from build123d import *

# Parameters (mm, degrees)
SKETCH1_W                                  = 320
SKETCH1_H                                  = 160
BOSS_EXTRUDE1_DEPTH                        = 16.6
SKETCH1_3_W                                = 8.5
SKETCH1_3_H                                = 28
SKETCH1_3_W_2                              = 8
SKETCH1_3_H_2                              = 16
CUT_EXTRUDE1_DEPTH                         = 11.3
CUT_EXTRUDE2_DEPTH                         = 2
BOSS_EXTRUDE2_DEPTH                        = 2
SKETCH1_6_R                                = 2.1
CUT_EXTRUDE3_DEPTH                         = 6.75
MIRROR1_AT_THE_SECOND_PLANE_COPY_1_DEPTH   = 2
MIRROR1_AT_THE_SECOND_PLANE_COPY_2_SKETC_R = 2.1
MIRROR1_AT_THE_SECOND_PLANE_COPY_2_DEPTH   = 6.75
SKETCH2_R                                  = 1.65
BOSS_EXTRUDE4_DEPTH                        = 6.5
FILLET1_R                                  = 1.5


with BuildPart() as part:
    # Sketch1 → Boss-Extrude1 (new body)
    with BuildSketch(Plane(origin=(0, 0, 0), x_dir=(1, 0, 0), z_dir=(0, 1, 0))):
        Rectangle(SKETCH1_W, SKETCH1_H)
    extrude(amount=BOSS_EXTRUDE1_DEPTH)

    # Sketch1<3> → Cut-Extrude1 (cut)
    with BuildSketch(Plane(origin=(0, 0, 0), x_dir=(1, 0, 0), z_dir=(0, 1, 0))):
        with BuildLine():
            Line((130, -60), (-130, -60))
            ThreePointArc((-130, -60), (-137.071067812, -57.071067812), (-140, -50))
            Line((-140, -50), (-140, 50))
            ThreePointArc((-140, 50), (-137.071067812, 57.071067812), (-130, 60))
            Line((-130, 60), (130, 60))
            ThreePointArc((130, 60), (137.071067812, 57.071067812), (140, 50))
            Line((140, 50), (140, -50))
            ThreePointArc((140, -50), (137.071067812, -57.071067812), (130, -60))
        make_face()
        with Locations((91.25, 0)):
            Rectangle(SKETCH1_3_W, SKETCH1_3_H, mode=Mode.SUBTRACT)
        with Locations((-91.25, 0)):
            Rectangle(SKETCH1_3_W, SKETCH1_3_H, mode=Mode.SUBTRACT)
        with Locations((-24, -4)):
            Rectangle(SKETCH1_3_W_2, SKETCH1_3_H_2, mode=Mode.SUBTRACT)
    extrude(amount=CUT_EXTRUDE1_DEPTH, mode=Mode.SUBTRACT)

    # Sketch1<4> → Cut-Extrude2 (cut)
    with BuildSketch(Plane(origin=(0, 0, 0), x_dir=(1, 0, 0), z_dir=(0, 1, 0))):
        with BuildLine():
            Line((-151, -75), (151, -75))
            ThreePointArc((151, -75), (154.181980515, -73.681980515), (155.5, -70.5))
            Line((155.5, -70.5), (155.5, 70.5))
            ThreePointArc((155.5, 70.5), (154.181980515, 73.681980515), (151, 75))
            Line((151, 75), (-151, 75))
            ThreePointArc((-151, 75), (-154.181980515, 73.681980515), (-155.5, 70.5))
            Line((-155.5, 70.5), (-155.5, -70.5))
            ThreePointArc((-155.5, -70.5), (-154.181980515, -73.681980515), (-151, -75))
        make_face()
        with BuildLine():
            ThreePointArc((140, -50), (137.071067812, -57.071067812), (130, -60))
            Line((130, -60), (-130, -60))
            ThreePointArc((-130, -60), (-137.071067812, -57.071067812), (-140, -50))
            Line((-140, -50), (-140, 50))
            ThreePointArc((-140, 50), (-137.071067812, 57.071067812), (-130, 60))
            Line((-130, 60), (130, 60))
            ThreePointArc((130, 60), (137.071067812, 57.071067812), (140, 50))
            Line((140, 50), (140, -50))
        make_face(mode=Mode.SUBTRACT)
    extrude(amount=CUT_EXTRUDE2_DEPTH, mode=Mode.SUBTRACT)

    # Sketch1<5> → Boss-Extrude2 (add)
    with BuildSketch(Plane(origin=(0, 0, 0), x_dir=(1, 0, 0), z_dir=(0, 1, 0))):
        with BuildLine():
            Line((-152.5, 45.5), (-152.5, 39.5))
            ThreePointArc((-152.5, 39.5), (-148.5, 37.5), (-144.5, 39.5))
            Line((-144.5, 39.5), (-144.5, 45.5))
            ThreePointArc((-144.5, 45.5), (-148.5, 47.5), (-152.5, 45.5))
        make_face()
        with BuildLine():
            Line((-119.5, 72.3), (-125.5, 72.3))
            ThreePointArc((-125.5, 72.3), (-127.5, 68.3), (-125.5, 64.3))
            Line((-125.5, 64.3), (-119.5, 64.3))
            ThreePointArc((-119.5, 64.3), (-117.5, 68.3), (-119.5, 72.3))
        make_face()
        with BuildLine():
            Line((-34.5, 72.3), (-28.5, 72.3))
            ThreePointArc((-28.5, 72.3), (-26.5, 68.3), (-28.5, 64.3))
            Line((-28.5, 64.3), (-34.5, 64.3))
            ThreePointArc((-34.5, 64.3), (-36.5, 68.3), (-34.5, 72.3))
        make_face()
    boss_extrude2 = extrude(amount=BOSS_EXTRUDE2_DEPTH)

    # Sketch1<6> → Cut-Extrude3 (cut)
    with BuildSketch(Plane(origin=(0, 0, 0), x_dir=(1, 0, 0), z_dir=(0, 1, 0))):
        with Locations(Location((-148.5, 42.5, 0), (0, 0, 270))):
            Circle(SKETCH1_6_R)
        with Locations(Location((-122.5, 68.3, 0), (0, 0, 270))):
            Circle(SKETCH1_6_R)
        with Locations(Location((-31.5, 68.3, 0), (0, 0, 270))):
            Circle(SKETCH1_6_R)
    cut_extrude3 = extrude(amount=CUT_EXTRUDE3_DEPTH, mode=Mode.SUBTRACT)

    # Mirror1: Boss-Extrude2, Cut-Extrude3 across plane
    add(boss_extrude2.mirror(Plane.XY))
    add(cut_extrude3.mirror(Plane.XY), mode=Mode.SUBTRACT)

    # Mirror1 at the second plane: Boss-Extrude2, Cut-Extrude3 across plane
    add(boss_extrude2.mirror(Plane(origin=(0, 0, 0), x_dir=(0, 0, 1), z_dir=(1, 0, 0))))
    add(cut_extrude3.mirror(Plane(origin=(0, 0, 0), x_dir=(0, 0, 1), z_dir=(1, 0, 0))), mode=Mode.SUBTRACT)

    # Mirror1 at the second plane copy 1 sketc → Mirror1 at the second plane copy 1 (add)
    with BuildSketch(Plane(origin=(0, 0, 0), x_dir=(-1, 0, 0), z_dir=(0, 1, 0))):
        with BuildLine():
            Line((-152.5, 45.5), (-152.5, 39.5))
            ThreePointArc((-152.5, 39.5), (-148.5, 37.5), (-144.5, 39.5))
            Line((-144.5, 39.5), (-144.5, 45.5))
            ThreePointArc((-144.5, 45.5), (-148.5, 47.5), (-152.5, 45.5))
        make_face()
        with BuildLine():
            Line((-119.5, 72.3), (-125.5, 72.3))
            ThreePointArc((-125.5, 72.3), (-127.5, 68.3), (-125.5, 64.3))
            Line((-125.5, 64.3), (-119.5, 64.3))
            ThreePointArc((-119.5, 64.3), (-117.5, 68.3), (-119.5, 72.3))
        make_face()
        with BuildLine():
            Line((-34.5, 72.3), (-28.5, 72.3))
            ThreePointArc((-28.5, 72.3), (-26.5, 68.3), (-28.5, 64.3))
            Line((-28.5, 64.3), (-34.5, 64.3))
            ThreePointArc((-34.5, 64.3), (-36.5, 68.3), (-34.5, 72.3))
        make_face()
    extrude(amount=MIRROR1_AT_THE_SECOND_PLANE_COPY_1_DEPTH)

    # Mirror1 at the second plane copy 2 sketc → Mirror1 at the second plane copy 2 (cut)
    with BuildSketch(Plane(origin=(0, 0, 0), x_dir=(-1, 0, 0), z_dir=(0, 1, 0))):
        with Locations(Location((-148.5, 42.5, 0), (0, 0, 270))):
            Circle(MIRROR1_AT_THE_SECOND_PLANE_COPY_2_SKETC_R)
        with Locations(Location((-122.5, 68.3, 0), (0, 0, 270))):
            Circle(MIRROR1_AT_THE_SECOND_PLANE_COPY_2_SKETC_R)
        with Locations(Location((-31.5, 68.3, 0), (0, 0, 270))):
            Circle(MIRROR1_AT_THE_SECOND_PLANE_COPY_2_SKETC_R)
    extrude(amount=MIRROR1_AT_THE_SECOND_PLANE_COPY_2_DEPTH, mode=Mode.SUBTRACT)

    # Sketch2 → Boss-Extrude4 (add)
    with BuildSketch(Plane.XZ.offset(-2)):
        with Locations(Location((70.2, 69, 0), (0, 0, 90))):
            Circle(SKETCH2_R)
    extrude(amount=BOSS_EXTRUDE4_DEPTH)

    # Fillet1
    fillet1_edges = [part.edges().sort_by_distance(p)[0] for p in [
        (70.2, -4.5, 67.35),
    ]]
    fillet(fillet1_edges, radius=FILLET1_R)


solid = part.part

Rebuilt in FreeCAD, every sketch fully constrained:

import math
import FreeCAD as App
import Part
import Sketcher
from FreeCAD import Vector


def edges_at(feature, points):
    """Names of the edges that pass closest to the given points."""
    edges = feature.Shape.Edges
    near = lambda p: min(range(len(edges)), key=lambda i: edges[i].distToShape(Part.Vertex(*p))[0])
    return sorted({f"Edge{near(p) + 1}" for p in points})

doc = App.newDocument("Part")
params = doc.addObject("Spreadsheet::Sheet", "Params")
for row, (alias, value) in enumerate([
    ("sketch1_width", "320 mm"),
    ("sketch1_height", "160 mm"),
    ("pad1_length", "16.6 mm"),
    ("sketch2_radius", "10 mm"),
    ("sketch2_width", "260 mm"),
    ("sketch2_width2", "8 mm"),
    ("sketch2_height", "100 mm"),
    ("sketch2_height2", "16 mm"),
    ("pocket1_length", "11.3 mm"),
    ("sketch3_radius", "10 mm"),
    ("sketch3_radius2", "4.5 mm"),
    ("sketch3_width", "302 mm"),
    ("sketch3_width2", "260 mm"),
    ("sketch3_height", "141 mm"),
    ("pocket2_length", "2 mm"),
    ("sketch4_radius", "5 mm"),
    ("sketch4_width", "6 mm"),
    ("pad2_length", "2 mm"),
    ("sketch5_diameter", "4.2 mm"),
    ("pocket3_length", "6.75 mm"),
    ("sketch6_radius", "5 mm"),
    ("sketch6_width", "6 mm"),
    ("pad3_length", "2 mm"),
    ("sketch7_diameter", "4.2 mm"),
    ("pocket4_length", "6.75 mm"),
    ("sketch8_diameter", "3.3 mm"),
    ("pad4_length", "6.5 mm"),
    ("fillet_radius", "1.5 mm"),
], start=1):
    params.set(f"A{row}", alias)
    params.set(f"B{row}", "=" + value)
    params.setAlias(f"B{row}", alias)

body = doc.addObject("PartDesign::Body", "Body")

# Sketch on XZ plane
sketch1 = body.newObject("Sketcher::SketchObject", "Sketch")
sketch1.AttachmentSupport = (doc.getObject("XZ_Plane"), [""])
sketch1.MapMode = "FlatFace"
sketch1.addGeometry([
    Part.LineSegment(Vector(-160, -80, 0), Vector(-160, 80, 0)),
    Part.LineSegment(Vector(-160, 80, 0), Vector(160, 80, 0)),
    Part.LineSegment(Vector(160, 80, 0), Vector(160, -80, 0)),
    Part.LineSegment(Vector(160, -80, 0), Vector(-160, -80, 0)),
], False)
sketch1.addConstraint([
    Sketcher.Constraint("Coincident", 0, 2, 1, 1),
    Sketcher.Constraint("Coincident", 1, 2, 2, 1),
    Sketcher.Constraint("Coincident", 2, 2, 3, 1),
    Sketcher.Constraint("Coincident", 3, 2, 0, 1),
    Sketcher.Constraint("Vertical", 0),
    Sketcher.Constraint("Horizontal", 1),
    Sketcher.Constraint("Vertical", 2),
    Sketcher.Constraint("Horizontal", 3),
    Sketcher.Constraint("Symmetric", 0, 2, 2, 2, -1, 1),
    Sketcher.Constraint("DistanceX", 1, 1, 1, 2, 320.0),
    Sketcher.Constraint("DistanceY", 0, 1, 0, 2, 160.0),
])
sketch1.setExpression("Constraints[9]", "Params.sketch1_width")
sketch1.setExpression("Constraints[10]", "Params.sketch1_height")
pad1 = body.newObject("PartDesign::Pad", "Pad")
pad1.Profile = sketch1
pad1.setExpression("Length", "Params.pad1_length")
pad1.Reversed = True

# Sketch on XZ plane
sketch2 = body.newObject("Sketcher::SketchObject", "Sketch001")
sketch2.AttachmentSupport = (doc.getObject("XZ_Plane"), [""])
sketch2.MapMode = "FlatFace"
sketch2.addGeometry([
    Part.LineSegment(Vector(-130, 60, 0), Vector(130, 60, 0)),  # 0
    Part.ArcOfCircle(Part.Circle(Vector(130, 50, 0), Vector(0, 0, 1), 10), math.radians(0), math.radians(90)),  # 1
    Part.LineSegment(Vector(140, 50, 0), Vector(140, -50, 0)),  # 2
    Part.ArcOfCircle(Part.Circle(Vector(130, -50, 0), Vector(0, 0, 1), 10), math.radians(-90), math.radians(0)),  # 3
    Part.LineSegment(Vector(130, -60, 0), Vector(-130, -60, 0)),  # 4
    Part.ArcOfCircle(Part.Circle(Vector(-130, -50, 0), Vector(0, 0, 1), 10), math.radians(180), math.radians(270)),  # 5
    Part.LineSegment(Vector(-140, -50, 0), Vector(-140, 50, 0)),  # 6
    Part.ArcOfCircle(Part.Circle(Vector(-130, 50, 0), Vector(0, 0, 1), 10), math.radians(90), math.radians(180)),  # 7
    Part.LineSegment(Vector(-28, 12, 0), Vector(-28, -4, 0)),  # 8
    Part.LineSegment(Vector(-28, -4, 0), Vector(-20, -4, 0)),  # 9
    Part.LineSegment(Vector(-20, -4, 0), Vector(-20, 12, 0)),  # 10
    Part.LineSegment(Vector(-20, 12, 0), Vector(-28, 12, 0)),  # 11
    Part.LineSegment(Vector(87, 14, 0), Vector(87, -14, 0)),  # 12
    Part.LineSegment(Vector(87, -14, 0), Vector(96, -14, 0)),  # 13
    Part.LineSegment(Vector(96, -14, 0), Vector(96, 14, 0)),  # 14
    Part.LineSegment(Vector(96, 14, 0), Vector(87, 14, 0)),  # 15
    Part.LineSegment(Vector(-96, 14, 0), Vector(-96, -14, 0)),  # 16
    Part.LineSegment(Vector(-96, -14, 0), Vector(-87, -14, 0)),  # 17
    Part.LineSegment(Vector(-87, -14, 0), Vector(-87, 14, 0)),  # 18
    Part.LineSegment(Vector(-87, 14, 0), Vector(-96, 14, 0)),  # 19
], False)
sketch2.addConstraint([
    Sketcher.Constraint("Tangent", 0, 2, 1, 2),
    Sketcher.Constraint("Tangent", 1, 1, 2, 1),
    Sketcher.Constraint("Tangent", 2, 2, 3, 2),
    Sketcher.Constraint("Tangent", 3, 1, 4, 1),
    Sketcher.Constraint("Tangent", 4, 2, 5, 2),
    Sketcher.Constraint("Tangent", 5, 1, 6, 1),
    Sketcher.Constraint("Tangent", 6, 2, 7, 2),
    Sketcher.Constraint("Tangent", 7, 1, 0, 1),
    Sketcher.Constraint("Coincident", 8, 2, 9, 1),
    Sketcher.Constraint("Coincident", 9, 2, 10, 1),
    Sketcher.Constraint("Coincident", 10, 2, 11, 1),
    Sketcher.Constraint("Coincident", 11, 2, 8, 1),
    Sketcher.Constraint("Coincident", 12, 2, 13, 1),
    Sketcher.Constraint("Coincident", 13, 2, 14, 1),
    Sketcher.Constraint("Coincident", 14, 2, 15, 1),
    Sketcher.Constraint("Coincident", 15, 2, 12, 1),
    Sketcher.Constraint("Coincident", 16, 2, 17, 1),
    Sketcher.Constraint("Coincident", 17, 2, 18, 1),
    Sketcher.Constraint("Coincident", 18, 2, 19, 1),
    Sketcher.Constraint("Coincident", 19, 2, 16, 1),
    Sketcher.Constraint("Horizontal", 0),
    Sketcher.Constraint("Vertical", 2),
    Sketcher.Constraint("Horizontal", 4),
    Sketcher.Constraint("Vertical", 6),
    Sketcher.Constraint("Vertical", 8),
    Sketcher.Constraint("Horizontal", 9),
    Sketcher.Constraint("Vertical", 10),
    Sketcher.Constraint("Horizontal", 11),
    Sketcher.Constraint("Vertical", 12),
    Sketcher.Constraint("Horizontal", 13),
    Sketcher.Constraint("Vertical", 14),
    Sketcher.Constraint("Horizontal", 15),
    Sketcher.Constraint("Vertical", 16),
    Sketcher.Constraint("Horizontal", 17),
    Sketcher.Constraint("Vertical", 18),
    Sketcher.Constraint("Horizontal", 19),
    Sketcher.Constraint("Equal", 1, 3),
    Sketcher.Constraint("Equal", 3, 5),
    Sketcher.Constraint("Equal", 5, 7),
    Sketcher.Constraint("Symmetric", 1, 3, 5, 3, -1, 1),
    Sketcher.Constraint("Symmetric", 14, 2, 16, 2, -1, 1),
    Sketcher.Constraint("Symmetric", 12, 2, 18, 2, -1, 1),
    Sketcher.Constraint("Horizontal", 13, 2, 16, 2),
    Sketcher.Constraint("Radius", 1, 10.0),
    Sketcher.Constraint("DistanceX", 0, 1, 0, 2, 260.0),
    Sketcher.Constraint("DistanceX", 9, 1, 9, 2, 8.0),
    Sketcher.Constraint("DistanceY", 2, 2, 2, 1, 100.0),
    Sketcher.Constraint("DistanceY", 8, 2, 8, 1, 16.0),
    Sketcher.Constraint("DistanceY", 12, 2, 12, 1, 28.0),
    Sketcher.Constraint("DistanceX", 13, 1, 13, 2, 8.5),
    Sketcher.Constraint("DistanceX", 8, 2, -1, 1, 28.0),
    Sketcher.Constraint("DistanceY", 8, 2, -1, 1, 4.0),
    Sketcher.Constraint("DistanceX", -1, 1, 12, 2, 87.0),
])
sketch2.setExpression("Constraints[43]", "Params.sketch2_radius")
sketch2.setExpression("Constraints[44]", "Params.sketch2_width")
sketch2.setExpression("Constraints[45]", "Params.sketch2_width2")
sketch2.setExpression("Constraints[46]", "Params.sketch2_height")
sketch2.setExpression("Constraints[47]", "Params.sketch2_height2")
pocket1 = body.newObject("PartDesign::Pocket", "Pocket")
pocket1.Profile = sketch2
pocket1.setExpression("Length", "Params.pocket1_length")

# Sketch on XZ plane
sketch3 = body.newObject("Sketcher::SketchObject", "Sketch002")
sketch3.AttachmentSupport = (doc.getObject("XZ_Plane"), [""])
sketch3.MapMode = "FlatFace"
sketch3.addGeometry([
    Part.LineSegment(Vector(-151, 75, 0), Vector(151, 75, 0)),  # 0
    Part.ArcOfCircle(Part.Circle(Vector(151, 70.5, 0), Vector(0, 0, 1), 4.5), math.radians(0), math.radians(90)),  # 1
    Part.LineSegment(Vector(155.5, 70.5, 0), Vector(155.5, -70.5, 0)),  # 2
    Part.ArcOfCircle(Part.Circle(Vector(151, -70.5, 0), Vector(0, 0, 1), 4.5), math.radians(-90), math.radians(0)),  # 3
    Part.LineSegment(Vector(151, -75, 0), Vector(-151, -75, 0)),  # 4
    Part.ArcOfCircle(Part.Circle(Vector(-151, -70.5, 0), Vector(0, 0, 1), 4.5), math.radians(-180), math.radians(-90)),  # 5
    Part.LineSegment(Vector(-155.5, -70.5, 0), Vector(-155.5, 70.5, 0)),  # 6
    Part.ArcOfCircle(Part.Circle(Vector(-151, 70.5, 0), Vector(0, 0, 1), 4.5), math.radians(90), math.radians(180)),  # 7
    Part.LineSegment(Vector(140, -50, 0), Vector(140, 50, 0)),  # 8
    Part.ArcOfCircle(Part.Circle(Vector(130, 50, 0), Vector(0, 0, 1), 10), math.radians(0), math.radians(90)),  # 9
    Part.LineSegment(Vector(130, 60, 0), Vector(-130, 60, 0)),  # 10
    Part.ArcOfCircle(Part.Circle(Vector(-130, 50, 0), Vector(0, 0, 1), 10), math.radians(90), math.radians(180)),  # 11
    Part.LineSegment(Vector(-140, 50, 0), Vector(-140, -50, 0)),  # 12
    Part.ArcOfCircle(Part.Circle(Vector(-130, -50, 0), Vector(0, 0, 1), 10), math.radians(180), math.radians(270)),  # 13
    Part.LineSegment(Vector(-130, -60, 0), Vector(130, -60, 0)),  # 14
    Part.ArcOfCircle(Part.Circle(Vector(130, -50, 0), Vector(0, 0, 1), 10), math.radians(-90), math.radians(0)),  # 15
], False)
sketch3.addConstraint([
    Sketcher.Constraint("Tangent", 0, 2, 1, 2),
    Sketcher.Constraint("Tangent", 1, 1, 2, 1),
    Sketcher.Constraint("Tangent", 2, 2, 3, 2),
    Sketcher.Constraint("Tangent", 3, 1, 4, 1),
    Sketcher.Constraint("Tangent", 4, 2, 5, 2),
    Sketcher.Constraint("Tangent", 5, 1, 6, 1),
    Sketcher.Constraint("Tangent", 6, 2, 7, 2),
    Sketcher.Constraint("Tangent", 7, 1, 0, 1),
    Sketcher.Constraint("Tangent", 8, 2, 9, 1),
    Sketcher.Constraint("Tangent", 9, 2, 10, 1),
    Sketcher.Constraint("Tangent", 10, 2, 11, 1),
    Sketcher.Constraint("Tangent", 11, 2, 12, 1),
    Sketcher.Constraint("Tangent", 12, 2, 13, 1),
    Sketcher.Constraint("Tangent", 13, 2, 14, 1),
    Sketcher.Constraint("Tangent", 14, 2, 15, 1),
    Sketcher.Constraint("Tangent", 15, 2, 8, 1),
    Sketcher.Constraint("Horizontal", 0),
    Sketcher.Constraint("Vertical", 2),
    Sketcher.Constraint("Horizontal", 4),
    Sketcher.Constraint("Vertical", 6),
    Sketcher.Constraint("Vertical", 8),
    Sketcher.Constraint("Horizontal", 10),
    Sketcher.Constraint("Vertical", 12),
    Sketcher.Constraint("Horizontal", 14),
    Sketcher.Constraint("Equal", 1, 3),
    Sketcher.Constraint("Equal", 3, 5),
    Sketcher.Constraint("Equal", 5, 7),
    Sketcher.Constraint("Equal", 9, 11),
    Sketcher.Constraint("Equal", 11, 13),
    Sketcher.Constraint("Equal", 13, 15),
    Sketcher.Constraint("Symmetric", 1, 3, 5, 3, -1, 1),
    Sketcher.Constraint("Symmetric", 9, 3, 13, 3, -1, 1),
    Sketcher.Constraint("Radius", 9, 10.0),
    Sketcher.Constraint("Radius", 1, 4.5),
    Sketcher.Constraint("DistanceX", 0, 1, 0, 2, 302.0),
    Sketcher.Constraint("DistanceX", 10, 2, 10, 1, 260.0),
    Sketcher.Constraint("DistanceY", 2, 2, 2, 1, 141.0),
    Sketcher.Constraint("DistanceY", 8, 1, 8, 2, 100.0),
])
sketch3.setExpression("Constraints[32]", "Params.sketch3_radius")
sketch3.setExpression("Constraints[33]", "Params.sketch3_radius2")
sketch3.setExpression("Constraints[34]", "Params.sketch3_width")
sketch3.setExpression("Constraints[35]", "Params.sketch3_width2")
sketch3.setExpression("Constraints[36]", "Params.sketch3_height")
pocket2 = body.newObject("PartDesign::Pocket", "Pocket001")
pocket2.Profile = sketch3
pocket2.setExpression("Length", "Params.pocket2_length")

# Sketch on XZ plane
sketch4 = body.newObject("Sketcher::SketchObject", "Sketch003")
sketch4.AttachmentSupport = (doc.getObject("XZ_Plane"), [""])
sketch4.MapMode = "FlatFace"
sketch4.addGeometry([
    Part.LineSegment(Vector(-152, -46, 0), Vector(-152, -40, 0)),  # 0
    Part.ArcOfCircle(Part.Circle(Vector(-148, -42, 0), Vector(0, 0, 1), 5), math.radians(37), math.radians(143)),  # 1
    Part.LineSegment(Vector(-144, -40, 0), Vector(-144, -46, 0)),  # 2
    Part.ArcOfCircle(Part.Circle(Vector(-148, -42, 0), Vector(0, 0, 1), 5), math.radians(-143), math.radians(-37)),  # 3
    Part.LineSegment(Vector(-120, -72, 0), Vector(-126, -72, 0)),  # 4
    Part.ArcOfCircle(Part.Circle(Vector(-122, -68, 0), Vector(0, 0, 1), 5), math.radians(127), math.radians(233)),  # 5
    Part.LineSegment(Vector(-126, -64, 0), Vector(-120, -64, 0)),  # 6
    Part.ArcOfCircle(Part.Circle(Vector(-122, -68, 0), Vector(0, 0, 1), 5), math.radians(-53), math.radians(53)),  # 7
    Part.LineSegment(Vector(-28, -72, 0), Vector(-34, -72, 0)),  # 8
    Part.ArcOfCircle(Part.Circle(Vector(-32, -68, 0), Vector(0, 0, 1), 5), math.radians(127), math.radians(233)),  # 9
    Part.LineSegment(Vector(-34, -64, 0), Vector(-28, -64, 0)),  # 10
    Part.ArcOfCircle(Part.Circle(Vector(-32, -68, 0), Vector(0, 0, 1), 5), math.radians(-53), math.radians(53)),  # 11
], False)
sketch4.addConstraint([
    Sketcher.Constraint("Coincident", 0, 2, 1, 2),
    Sketcher.Constraint("Coincident", 1, 1, 2, 1),
    Sketcher.Constraint("Coincident", 2, 2, 3, 2),
    Sketcher.Constraint("Coincident", 3, 1, 0, 1),
    Sketcher.Constraint("Coincident", 4, 2, 5, 2),
    Sketcher.Constraint("Coincident", 5, 1, 6, 1),
    Sketcher.Constraint("Coincident", 6, 2, 7, 2),
    Sketcher.Constraint("Coincident", 7, 1, 4, 1),
    Sketcher.Constraint("Coincident", 8, 2, 9, 2),
    Sketcher.Constraint("Coincident", 9, 1, 10, 1),
    Sketcher.Constraint("Coincident", 10, 2, 11, 2),
    Sketcher.Constraint("Coincident", 11, 1, 8, 1),
    Sketcher.Constraint("Vertical", 0),
    Sketcher.Constraint("Vertical", 2),
    Sketcher.Constraint("Horizontal", 4),
    Sketcher.Constraint("Horizontal", 6),
    Sketcher.Constraint("Horizontal", 8),
    Sketcher.Constraint("Horizontal", 10),
    Sketcher.Constraint("Coincident", 3, 3, 1, 3),
    Sketcher.Constraint("Coincident", 7, 3, 5, 3),
    Sketcher.Constraint("Coincident", 11, 3, 9, 3),
    Sketcher.Constraint("Equal", 1, 3),
    Sketcher.Constraint("Equal", 3, 5),
    Sketcher.Constraint("Equal", 5, 7),
    Sketcher.Constraint("Equal", 7, 9),
    Sketcher.Constraint("Equal", 9, 11),
    Sketcher.Constraint("Horizontal", 7, 3, 9, 3),
    Sketcher.Constraint("Horizontal", 0, 2, 1, 1),
    Sketcher.Constraint("Horizontal", 7, 1, 8, 2),
    Sketcher.Constraint("Horizontal", 6, 2, 9, 1),
    Sketcher.Constraint("Vertical", 4, 2, 5, 1),
    Sketcher.Constraint("Equal", 10, 0),
    Sketcher.Constraint("Radius", 1, 5.0),
    Sketcher.Constraint("DistanceX", 4, 2, 4, 1, 6.0),
    Sketcher.Constraint("DistanceX", 1, 3, 5, 3, 26.0),
    Sketcher.Constraint("DistanceX", 5, 3, 9, 3, 91.0),
    Sketcher.Constraint("DistanceX", 1, 3, -1, 1, 148.5),
    Sketcher.Constraint("DistanceY", 1, 3, -1, 1, 42.5),
    Sketcher.Constraint("DistanceY", 5, 3, -1, 1, 68.3),
])
sketch4.setExpression("Constraints[32]", "Params.sketch4_radius")
sketch4.setExpression("Constraints[33]", "Params.sketch4_width")
pad2 = body.newObject("PartDesign::Pad", "Pad001")
pad2.Profile = sketch4
pad2.setExpression("Length", "Params.pad2_length")
pad2.Reversed = True

# Sketch on XZ plane
sketch5 = body.newObject("Sketcher::SketchObject", "Sketch004")
sketch5.AttachmentSupport = (doc.getObject("XZ_Plane"), [""])
sketch5.MapMode = "FlatFace"
sketch5.addGeometry([
    Part.Circle(Vector(-148.5, -42.5, 0), Vector(0, 0, 1), 2.1),
    Part.Circle(Vector(-122.5, -68.3, 0), Vector(0, 0, 1), 2.1),
    Part.Circle(Vector(-31.5, -68.3, 0), Vector(0, 0, 1), 2.1),
], False)
sketch5.addConstraint([
    Sketcher.Constraint("Equal", 0, 1),
    Sketcher.Constraint("Equal", 1, 2),
    Sketcher.Constraint("Horizontal", 1, 3, 2, 3),
    Sketcher.Constraint("Diameter", 0, 4.2),
    Sketcher.Constraint("DistanceX", 0, 3, 1, 3, 26.0),
    Sketcher.Constraint("DistanceX", 1, 3, 2, 3, 91.0),
    Sketcher.Constraint("DistanceX", 0, 3, -1, 1, 148.5),
    Sketcher.Constraint("DistanceY", 0, 3, -1, 1, 42.5),
    Sketcher.Constraint("DistanceY", 1, 3, -1, 1, 68.3),
])
sketch5.setExpression("Constraints[3]", "Params.sketch5_diameter")
pocket3 = body.newObject("PartDesign::Pocket", "Pocket002")
pocket3.Profile = sketch5
pocket3.setExpression("Length", "Params.pocket3_length")
doc.recompute()

mirrored = body.newObject("PartDesign::Mirrored", "Mirrored")
mirrored.Originals = [pad2, pocket3]
mirrored.MirrorPlane = (doc.getObject("XY_Plane"), [""])
body.Tip = mirrored
doc.recompute()

mirrored2 = body.newObject("PartDesign::Mirrored", "Mirrored001")
mirrored2.Originals = [pad2, pocket3]
mirrored2.MirrorPlane = (doc.getObject("YZ_Plane"), [""])
body.Tip = mirrored2

# Sketch on XZ plane
sketch6 = body.newObject("Sketcher::SketchObject", "Sketch005")
sketch6.AttachmentSupport = (doc.getObject("XZ_Plane"), [""])
sketch6.MapMode = "FlatFace"
sketch6.addGeometry([
    Part.LineSegment(Vector(152, 46, 0), Vector(152, 40, 0)),  # 0
    Part.ArcOfCircle(Part.Circle(Vector(148, 42, 0), Vector(0, 0, 1), 5), math.radians(-143), math.radians(-37)),  # 1
    Part.LineSegment(Vector(144, 40, 0), Vector(144, 46, 0)),  # 2
    Part.ArcOfCircle(Part.Circle(Vector(148, 42, 0), Vector(0, 0, 1), 5), math.radians(37), math.radians(143)),  # 3
    Part.LineSegment(Vector(120, 72, 0), Vector(126, 72, 0)),  # 4
    Part.ArcOfCircle(Part.Circle(Vector(122, 68, 0), Vector(0, 0, 1), 5), math.radians(-53), math.radians(53)),  # 5
    Part.LineSegment(Vector(126, 64, 0), Vector(120, 64, 0)),  # 6
    Part.ArcOfCircle(Part.Circle(Vector(122, 68, 0), Vector(0, 0, 1), 5), math.radians(127), math.radians(233)),  # 7
    Part.LineSegment(Vector(28, 72, 0), Vector(34, 72, 0)),  # 8
    Part.ArcOfCircle(Part.Circle(Vector(32, 68, 0), Vector(0, 0, 1), 5), math.radians(-53), math.radians(53)),  # 9
    Part.LineSegment(Vector(34, 64, 0), Vector(28, 64, 0)),  # 10
    Part.ArcOfCircle(Part.Circle(Vector(32, 68, 0), Vector(0, 0, 1), 5), math.radians(127), math.radians(233)),  # 11
], False)
sketch6.addConstraint([
    Sketcher.Constraint("Coincident", 0, 2, 1, 2),
    Sketcher.Constraint("Coincident", 1, 1, 2, 1),
    Sketcher.Constraint("Coincident", 2, 2, 3, 2),
    Sketcher.Constraint("Coincident", 3, 1, 0, 1),
    Sketcher.Constraint("Coincident", 4, 2, 5, 2),
    Sketcher.Constraint("Coincident", 5, 1, 6, 1),
    Sketcher.Constraint("Coincident", 6, 2, 7, 2),
    Sketcher.Constraint("Coincident", 7, 1, 4, 1),
    Sketcher.Constraint("Coincident", 8, 2, 9, 2),
    Sketcher.Constraint("Coincident", 9, 1, 10, 1),
    Sketcher.Constraint("Coincident", 10, 2, 11, 2),
    Sketcher.Constraint("Coincident", 11, 1, 8, 1),
    Sketcher.Constraint("Vertical", 0),
    Sketcher.Constraint("Vertical", 2),
    Sketcher.Constraint("Horizontal", 4),
    Sketcher.Constraint("Horizontal", 6),
    Sketcher.Constraint("Horizontal", 8),
    Sketcher.Constraint("Horizontal", 10),
    Sketcher.Constraint("Coincident", 3, 3, 1, 3),
    Sketcher.Constraint("Coincident", 7, 3, 5, 3),
    Sketcher.Constraint("Coincident", 11, 3, 9, 3),
    Sketcher.Constraint("Equal", 1, 3),
    Sketcher.Constraint("Equal", 3, 5),
    Sketcher.Constraint("Equal", 5, 7),
    Sketcher.Constraint("Equal", 7, 9),
    Sketcher.Constraint("Equal", 9, 11),
    Sketcher.Constraint("Horizontal", 7, 3, 9, 3),
    Sketcher.Constraint("Horizontal", 0, 2, 1, 1),
    Sketcher.Constraint("Horizontal", 7, 1, 8, 2),
    Sketcher.Constraint("Horizontal", 6, 2, 9, 1),
    Sketcher.Constraint("Vertical", 4, 2, 5, 1),
    Sketcher.Constraint("Equal", 10, 0),
    Sketcher.Constraint("Radius", 1, 5.0),
    Sketcher.Constraint("DistanceX", 4, 1, 4, 2, 6.0),
    Sketcher.Constraint("DistanceX", 5, 3, 1, 3, 26.0),
    Sketcher.Constraint("DistanceX", 9, 3, 5, 3, 91.0),
    Sketcher.Constraint("DistanceX", -1, 1, 1, 3, 148.5),
    Sketcher.Constraint("DistanceY", -1, 1, 1, 3, 42.5),
    Sketcher.Constraint("DistanceY", -1, 1, 5, 3, 68.3),
])
sketch6.setExpression("Constraints[32]", "Params.sketch6_radius")
sketch6.setExpression("Constraints[33]", "Params.sketch6_width")
pad3 = body.newObject("PartDesign::Pad", "Pad002")
pad3.Profile = sketch6
pad3.setExpression("Length", "Params.pad3_length")
pad3.Reversed = True

# Sketch on XZ plane
sketch7 = body.newObject("Sketcher::SketchObject", "Sketch006")
sketch7.AttachmentSupport = (doc.getObject("XZ_Plane"), [""])
sketch7.MapMode = "FlatFace"
sketch7.addGeometry([
    Part.Circle(Vector(148.5, 42.5, 0), Vector(0, 0, 1), 2.1),
    Part.Circle(Vector(122.5, 68.3, 0), Vector(0, 0, 1), 2.1),
    Part.Circle(Vector(31.5, 68.3, 0), Vector(0, 0, 1), 2.1),
], False)
sketch7.addConstraint([
    Sketcher.Constraint("Equal", 0, 1),
    Sketcher.Constraint("Equal", 1, 2),
    Sketcher.Constraint("Horizontal", 1, 3, 2, 3),
    Sketcher.Constraint("Diameter", 0, 4.2),
    Sketcher.Constraint("DistanceX", 1, 3, 0, 3, 26.0),
    Sketcher.Constraint("DistanceX", 2, 3, 1, 3, 91.0),
    Sketcher.Constraint("DistanceX", -1, 1, 0, 3, 148.5),
    Sketcher.Constraint("DistanceY", -1, 1, 0, 3, 42.5),
    Sketcher.Constraint("DistanceY", -1, 1, 1, 3, 68.3),
])
sketch7.setExpression("Constraints[3]", "Params.sketch7_diameter")
pocket4 = body.newObject("PartDesign::Pocket", "Pocket003")
pocket4.Profile = sketch7
pocket4.setExpression("Length", "Params.pocket4_length")

# Sketch on XZ plane
sketch8 = body.newObject("Sketcher::SketchObject", "Sketch007")
sketch8.AttachmentSupport = (doc.getObject("XZ_Plane"), [""])
sketch8.MapMode = "FlatFace"
sketch8.AttachmentOffset = App.Placement(Vector(0, 0, -2), App.Rotation())
sketch8.addGeometry(Part.Circle(Vector(70.2, 69, 0), Vector(0, 0, 1), 1.6), False)
sketch8.addConstraint([
    Sketcher.Constraint("Diameter", 0, 3.3),
    Sketcher.Constraint("DistanceY", -1, 1, 0, 3, 69.0),
    Sketcher.Constraint("DistanceX", -1, 1, 0, 3, 70.2),
])
sketch8.setExpression("Constraints[0]", "Params.sketch8_diameter")
pad4 = body.newObject("PartDesign::Pad", "Pad003")
pad4.Profile = sketch8
pad4.setExpression("Length", "Params.pad4_length")
doc.recompute()

fillet = body.newObject("PartDesign::Fillet", "Fillet")
fillet.Base = (pad4, edges_at(pad4, [(70.2, -4.5, 67.35)]))
fillet.setExpression("Radius", "Params.fillet_radius")

doc.recompute()
